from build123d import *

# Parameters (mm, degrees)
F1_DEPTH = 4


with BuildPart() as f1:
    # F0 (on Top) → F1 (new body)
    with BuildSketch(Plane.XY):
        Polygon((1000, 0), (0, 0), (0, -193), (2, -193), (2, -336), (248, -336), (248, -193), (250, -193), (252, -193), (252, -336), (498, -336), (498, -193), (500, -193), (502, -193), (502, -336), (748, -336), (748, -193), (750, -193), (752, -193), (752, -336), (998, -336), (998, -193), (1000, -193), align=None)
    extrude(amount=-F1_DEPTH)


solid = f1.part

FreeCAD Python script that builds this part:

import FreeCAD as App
import Part
import Sketcher

V = App.Vector
Q = App.Units.Quantity


def add_polygon(sketch, points):
    """Adds a closed chain of lines whose ends are joined by coincident constraints."""
    first, n = sketch.GeometryCount, len(points)
    for a, b in zip(points, points[1:] + points[:1]):
        sketch.addGeometry(Part.LineSegment(App.Vector(*a, 0), App.Vector(*b, 0)), False)
    for i in range(n):
        sketch.addConstraint(Sketcher.Constraint("Coincident", first + i, 2, first + (i + 1) % n, 1))

doc = App.newDocument("Part")
body = doc.addObject("PartDesign::Body", "Body")

sketch1 = body.newObject("Sketcher::SketchObject", "Sketch")
sketch1.AttachmentSupport = (doc.getObject("XY_Plane"), [""])
sketch1.MapMode = "FlatFace"
add_polygon(sketch1, [(1000, 0), (0, 0), (0, -193), (2, -193), (2, -336), (248, -336), (248, -193), (252, -193), (252, -336), (498, -336), (498, -193), (502, -193), (502, -336), (748, -336), (748, -193), (752, -193), (752, -336), (998, -336), (998, -193), (1000, -193)])
sketch1.addConstraint([
    Sketcher.Constraint("Horizontal", 0),
    Sketcher.Constraint("Vertical", 1),
    Sketcher.Constraint("Horizontal", 2),
    Sketcher.Constraint("Vertical", 3),
    Sketcher.Constraint("Horizontal", 4),
    Sketcher.Constraint("Vertical", 5),
    Sketcher.Constraint("Horizontal", 6),
    Sketcher.Constraint("Vertical", 7),
    Sketcher.Constraint("Horizontal", 8),
    Sketcher.Constraint("Vertical", 9),
    Sketcher.Constraint("Horizontal", 10),
    Sketcher.Constraint("Vertical", 11),
    Sketcher.Constraint("Horizontal", 12),
    Sketcher.Constraint("Vertical", 13),
    Sketcher.Constraint("Horizontal", 14),
    Sketcher.Constraint("Vertical", 15),
    Sketcher.Constraint("Horizontal", 16),
    Sketcher.Constraint("Vertical", 17),
    Sketcher.Constraint("Horizontal", 18),
    Sketcher.Constraint("Vertical", 19),
    Sketcher.Constraint("Coincident", 0, 2, -1, 1),
    Sketcher.Constraint("Horizontal", 2, 2, 5, 2),
    Sketcher.Constraint("Horizontal", 4, 2, 7, 2),
    Sketcher.Constraint("Horizontal", 6, 2, 9, 2),
    Sketcher.Constraint("Horizontal", 8, 2, 11, 2),
    Sketcher.Constraint("Horizontal", 10, 2, 13, 2),
    Sketcher.Constraint("Horizontal", 12, 2, 15, 2),
    Sketcher.Constraint("Horizontal", 14, 2, 17, 2),
    Sketcher.Constraint("Equal", 4, 8),
    Sketcher.Constraint("Equal", 6, 10),
    Sketcher.Constraint("Equal", 8, 12),
    Sketcher.Constraint("Equal", 10, 14),
    Sketcher.Constraint("Equal", 12, 16),
    Sketcher.Constraint("Equal", 2, 18),
    Sketcher.Constraint("DistanceX", 0, 2, 0, 1, Q("1000 mm")),
    Sketcher.Constraint("DistanceX", 2, 1, 2, 2, Q("2 mm")),
    Sketcher.Constraint("DistanceX", 4, 1, 4, 2, Q("246 mm")),
    Sketcher.Constraint("DistanceY", 1, 2, 1, 1, Q("193 mm")),
    Sketcher.Constraint("DistanceY", 3, 2, 3, 1, Q("143 mm")),
])
pad1 = body.newObject("PartDesign::Pad", "Pad")
pad1.Profile = sketch1
pad1.Length = 4
pad1.Reversed = True

doc.recompute()
